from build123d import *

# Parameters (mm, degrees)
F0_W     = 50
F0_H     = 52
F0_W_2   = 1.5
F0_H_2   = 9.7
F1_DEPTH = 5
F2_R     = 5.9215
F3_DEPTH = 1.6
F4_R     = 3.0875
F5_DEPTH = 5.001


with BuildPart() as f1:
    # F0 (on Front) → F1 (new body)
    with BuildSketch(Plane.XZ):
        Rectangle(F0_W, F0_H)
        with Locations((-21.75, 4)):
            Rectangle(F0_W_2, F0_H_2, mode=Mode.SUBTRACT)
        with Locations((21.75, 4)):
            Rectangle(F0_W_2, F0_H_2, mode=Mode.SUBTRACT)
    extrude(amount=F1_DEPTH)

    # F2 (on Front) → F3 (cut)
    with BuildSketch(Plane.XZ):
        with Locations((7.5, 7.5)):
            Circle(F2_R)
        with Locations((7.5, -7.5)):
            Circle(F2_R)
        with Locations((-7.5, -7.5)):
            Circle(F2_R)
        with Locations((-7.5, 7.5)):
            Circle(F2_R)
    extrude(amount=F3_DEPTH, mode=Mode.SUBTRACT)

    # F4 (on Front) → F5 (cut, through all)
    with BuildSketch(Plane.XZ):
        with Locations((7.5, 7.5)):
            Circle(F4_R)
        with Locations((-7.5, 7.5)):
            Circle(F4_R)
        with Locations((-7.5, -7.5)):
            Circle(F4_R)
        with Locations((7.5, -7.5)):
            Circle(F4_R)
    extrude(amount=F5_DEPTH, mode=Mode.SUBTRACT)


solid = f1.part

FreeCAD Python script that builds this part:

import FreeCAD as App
import Part
import Sketcher


def add_polygon(sketch, points):
    """Adds a closed chain of lines whose ends are joined by coincident constraints."""
    first, n = sketch.GeometryCount, len(points)
    for a, b in zip(points, points[1:] + points[:1]):
        sketch.addGeometry(Part.LineSegment(App.Vector(*a, 0), App.Vector(*b, 0)), False)
    for i in range(n):
        sketch.addConstraint(Sketcher.Constraint("Coincident", first + i, 2, first + (i + 1) % n, 1))

doc = App.newDocument("Part")
body = doc.addObject("PartDesign::Body", "Body")

sketch1 = body.newObject("Sketcher::SketchObject", "Sketch")
sketch1.AttachmentSupport = (doc.getObject("XZ_Plane"), [""])
sketch1.MapMode = "FlatFace"
add_polygon(sketch1, [(-25, 26), (-25, -26), (25, -26), (25, 26)])
add_polygon(sketch1, [(-21, -0.8), (-22.5, -0.8), (-22.5, 8.8), (-21, 8.8)])
add_polygon(sketch1, [(22.5, -0.8), (21, -0.8), (21, 8.8), (22.5, 8.8)])
sketch1.addConstraint([
    Sketcher.Constraint("Vertical", 0),
    Sketcher.Constraint("Horizontal", 1),
    Sketcher.Constraint("Vertical", 2),
    Sketcher.Constraint("Horizontal", 3),
    Sketcher.Constraint("Horizontal", 4),
    Sketcher.Constraint("Vertical", 5),
    Sketcher.Constraint("Horizontal", 6),
    Sketcher.Constraint("Vertical", 7),
    Sketcher.Constraint("Horizontal", 8),
    Sketcher.Constraint("Vertical", 9),
    Sketcher.Constraint("Horizontal", 10),
    Sketcher.Constraint("Vertical", 11),
    Sketcher.Constraint("Symmetric", 0, 2, 2, 2, -1, 1),
    Sketcher.Constraint("Symmetric", 7, 2, 8, 2, -2),
    Sketcher.Constraint("Symmetric", 5, 2, 10, 2, -2),
    Sketcher.Constraint("DistanceX", 1, 1, 1, 2, 50.0),
    Sketcher.Constraint("DistanceY", 0, 2, 0, 1, 52.0),
    Sketcher.Constraint("DistanceX", 4, 2, 4, 1, 1.5),
    Sketcher.Constraint("DistanceY", 5, 1, 5, 2, 9.7),
    Sketcher.Constraint("DistanceX", 6, 2, -1, 1, 21.0),
    Sketcher.Constraint("DistanceY", 4, 2, -1, 1, 0.85),
])
pad1 = body.newObject("PartDesign::Pad", "Pad")
pad1.Profile = sketch1
pad1.Length = 5

sketch2 = body.newObject("Sketcher::SketchObject", "Sketch001")
sketch2.AttachmentSupport = (doc.getObject("XZ_Plane"), [""])
sketch2.MapMode = "FlatFace"
sketch2.addGeometry([
    Part.Circle(App.Vector(8, 8, 0), App.Vector(0, 0, 1), 6),
    Part.Circle(App.Vector(8, -8, 0), App.Vector(0, 0, 1), 6),
    Part.Circle(App.Vector(-8, -8, 0), App.Vector(0, 0, 1), 6),
    Part.Circle(App.Vector(-8, 8, 0), App.Vector(0, 0, 1), 6),
], False)
sketch2.addConstraint([
    Sketcher.Constraint("Equal", 0, 1),
    Sketcher.Constraint("Equal", 1, 2),
    Sketcher.Constraint("Equal", 2, 3),
    Sketcher.Constraint("Symmetric", 0, 3, 2, 3, -1, 1),
    Sketcher.Constraint("Symmetric", 1, 3, 3, 3, -1, 1),
    Sketcher.Constraint("Symmetric", 1, 3, 2, 3, -2),
    Sketcher.Constraint("Diameter", 0, 11.843),
    Sketcher.Constraint("DistanceY", 1, 3, 0, 3, 15.0),
    Sketcher.Constraint("DistanceX", 2, 3, 1, 3, 15.0),
])
pocket1 = body.newObject("PartDesign::Pocket", "Pocket")
pocket1.Profile = sketch2
pocket1.Length = 1.6
pocket1.Reversed = True

sketch3 = body.newObject("Sketcher::SketchObject", "Sketch002")
sketch3.AttachmentSupport = (doc.getObject("XZ_Plane"), [""])
sketch3.MapMode = "FlatFace"
sketch3.addGeometry([
    Part.Circle(App.Vector(7.5, 7.5, 0), App.Vector(0, 0, 1), 3.1),
    Part.Circle(App.Vector(-7.5, 7.5, 0), App.Vector(0, 0, 1), 3.1),
    Part.Circle(App.Vector(-7.5, -7.5, 0), App.Vector(0, 0, 1), 3.1),
    Part.Circle(App.Vector(7.5, -7.5, 0), App.Vector(0, 0, 1), 3.1),
], False)
sketch3.addConstraint([
    Sketcher.Constraint("Equal", 0, 1),
    Sketcher.Constraint("Equal", 1, 2),
    Sketcher.Constraint("Equal", 2, 3),
    Sketcher.Constraint("Symmetric", 0, 3, 2, 3, -1, 1),
    Sketcher.Constraint("Symmetric", 1, 3, 3, 3, -1, 1),
    Sketcher.Constraint("Symmetric", 0, 3, 1, 3, -2),
    Sketcher.Constraint("Diameter", 0, 6.175),
    Sketcher.Constraint("DistanceX", 1, 3, 0, 3, 15.0),
    Sketcher.Constraint("DistanceY", 2, 3, 1, 3, 15.0),
])
pocket2 = body.newObject("PartDesign::Pocket", "Pocket001")
pocket2.Profile = sketch3
pocket2.Type = "ThroughAll"
pocket2.Reversed = True

doc.recompute()
